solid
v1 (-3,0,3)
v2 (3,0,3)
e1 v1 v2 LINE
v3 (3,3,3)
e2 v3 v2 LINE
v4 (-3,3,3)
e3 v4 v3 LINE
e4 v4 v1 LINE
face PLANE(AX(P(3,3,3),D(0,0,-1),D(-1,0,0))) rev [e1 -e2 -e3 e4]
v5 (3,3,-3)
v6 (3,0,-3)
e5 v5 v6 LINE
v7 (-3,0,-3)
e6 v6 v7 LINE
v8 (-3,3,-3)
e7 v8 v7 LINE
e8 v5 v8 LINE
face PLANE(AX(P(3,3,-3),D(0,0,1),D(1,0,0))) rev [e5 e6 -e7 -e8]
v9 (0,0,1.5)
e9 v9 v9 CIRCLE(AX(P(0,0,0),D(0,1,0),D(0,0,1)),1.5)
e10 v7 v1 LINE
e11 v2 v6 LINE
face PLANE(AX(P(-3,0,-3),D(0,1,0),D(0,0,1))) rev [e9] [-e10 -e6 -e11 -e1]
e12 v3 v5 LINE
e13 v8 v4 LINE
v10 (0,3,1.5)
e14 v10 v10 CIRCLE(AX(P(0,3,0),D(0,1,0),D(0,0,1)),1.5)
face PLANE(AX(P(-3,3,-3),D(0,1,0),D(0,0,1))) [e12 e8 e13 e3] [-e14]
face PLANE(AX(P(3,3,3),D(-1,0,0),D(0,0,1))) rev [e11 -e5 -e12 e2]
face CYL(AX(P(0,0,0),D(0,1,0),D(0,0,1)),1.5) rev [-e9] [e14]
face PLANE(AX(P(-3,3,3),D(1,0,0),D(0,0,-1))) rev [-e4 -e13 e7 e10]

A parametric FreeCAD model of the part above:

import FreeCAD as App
import Part
import Sketcher
from FreeCAD import Vector

doc = App.newDocument("Part")
body = doc.addObject("PartDesign::Body", "Body")

sketch1 = body.newObject("Sketcher::SketchObject", "Sketch")
sketch1.AttachmentSupport = (doc.getObject("XZ_Plane"), [""])
sketch1.MapMode = "FlatFace"
sketch1.addGeometry(Part.LineSegment(Vector(-3, -3, 0), Vector(-3, 3, 0)), False)
sketch1.addGeometry(Part.LineSegment(Vector(-3, 3, 0), Vector(3, 3, 0)), False)
sketch1.addGeometry(Part.LineSegment(Vector(3, 3, 0), Vector(3, -3, 0)), False)
sketch1.addGeometry(Part.LineSegment(Vector(3, -3, 0), Vector(-3, -3, 0)), False)
sketch1.addConstraint(Sketcher.Constraint("Coincident", 0, 2, 1, 1))
sketch1.addConstraint(Sketcher.Constraint("Coincident", 1, 2, 2, 1))
sketch1.addConstraint(Sketcher.Constraint("Coincident", 2, 2, 3, 1))
sketch1.addConstraint(Sketcher.Constraint("Coincident", 3, 2, 0, 1))
sketch1.addConstraint(Sketcher.Constraint("Vertical", 0))
sketch1.addConstraint(Sketcher.Constraint("Horizontal", 1))
sketch1.addConstraint(Sketcher.Constraint("Vertical", 2))
sketch1.addConstraint(Sketcher.Constraint("Horizontal", 3))
sketch1.addConstraint(Sketcher.Constraint("Symmetric", 0, 2, 2, 2, -1, 1))
sketch1.addConstraint(Sketcher.Constraint("Equal", 3, 0))
sketch1.addConstraint(Sketcher.Constraint("DistanceX", 1, 1, 1, 2, 6.0))
pad1 = body.newObject("PartDesign::Pad", "Pad")
pad1.Profile = sketch1
pad1.Length = 3
pad1.Reversed = True

sketch2 = body.newObject("Sketcher::SketchObject", "Sketch001")
sketch2.AttachmentSupport = (doc.getObject("XZ_Plane"), [""])
sketch2.MapMode = "FlatFace"
sketch2.AttachmentOffset = App.Placement(Vector(0, 0, -3), App.Rotation())
sketch2.addGeometry(Part.Circle(Vector(0, 0, 0), Vector(0, 0, 1), 1.5), False)
sketch2.addConstraint(Sketcher.Constraint("Coincident", 0, 3, -1, 1))
sketch2.addConstraint(Sketcher.Constraint("Diameter", 0, 3.0))
pocket1 = body.newObject("PartDesign::Pocket", "Pocket")
pocket1.Profile = sketch2
pocket1.Type = "ThroughAll"
pocket1.Reversed = True

doc.recompute()
